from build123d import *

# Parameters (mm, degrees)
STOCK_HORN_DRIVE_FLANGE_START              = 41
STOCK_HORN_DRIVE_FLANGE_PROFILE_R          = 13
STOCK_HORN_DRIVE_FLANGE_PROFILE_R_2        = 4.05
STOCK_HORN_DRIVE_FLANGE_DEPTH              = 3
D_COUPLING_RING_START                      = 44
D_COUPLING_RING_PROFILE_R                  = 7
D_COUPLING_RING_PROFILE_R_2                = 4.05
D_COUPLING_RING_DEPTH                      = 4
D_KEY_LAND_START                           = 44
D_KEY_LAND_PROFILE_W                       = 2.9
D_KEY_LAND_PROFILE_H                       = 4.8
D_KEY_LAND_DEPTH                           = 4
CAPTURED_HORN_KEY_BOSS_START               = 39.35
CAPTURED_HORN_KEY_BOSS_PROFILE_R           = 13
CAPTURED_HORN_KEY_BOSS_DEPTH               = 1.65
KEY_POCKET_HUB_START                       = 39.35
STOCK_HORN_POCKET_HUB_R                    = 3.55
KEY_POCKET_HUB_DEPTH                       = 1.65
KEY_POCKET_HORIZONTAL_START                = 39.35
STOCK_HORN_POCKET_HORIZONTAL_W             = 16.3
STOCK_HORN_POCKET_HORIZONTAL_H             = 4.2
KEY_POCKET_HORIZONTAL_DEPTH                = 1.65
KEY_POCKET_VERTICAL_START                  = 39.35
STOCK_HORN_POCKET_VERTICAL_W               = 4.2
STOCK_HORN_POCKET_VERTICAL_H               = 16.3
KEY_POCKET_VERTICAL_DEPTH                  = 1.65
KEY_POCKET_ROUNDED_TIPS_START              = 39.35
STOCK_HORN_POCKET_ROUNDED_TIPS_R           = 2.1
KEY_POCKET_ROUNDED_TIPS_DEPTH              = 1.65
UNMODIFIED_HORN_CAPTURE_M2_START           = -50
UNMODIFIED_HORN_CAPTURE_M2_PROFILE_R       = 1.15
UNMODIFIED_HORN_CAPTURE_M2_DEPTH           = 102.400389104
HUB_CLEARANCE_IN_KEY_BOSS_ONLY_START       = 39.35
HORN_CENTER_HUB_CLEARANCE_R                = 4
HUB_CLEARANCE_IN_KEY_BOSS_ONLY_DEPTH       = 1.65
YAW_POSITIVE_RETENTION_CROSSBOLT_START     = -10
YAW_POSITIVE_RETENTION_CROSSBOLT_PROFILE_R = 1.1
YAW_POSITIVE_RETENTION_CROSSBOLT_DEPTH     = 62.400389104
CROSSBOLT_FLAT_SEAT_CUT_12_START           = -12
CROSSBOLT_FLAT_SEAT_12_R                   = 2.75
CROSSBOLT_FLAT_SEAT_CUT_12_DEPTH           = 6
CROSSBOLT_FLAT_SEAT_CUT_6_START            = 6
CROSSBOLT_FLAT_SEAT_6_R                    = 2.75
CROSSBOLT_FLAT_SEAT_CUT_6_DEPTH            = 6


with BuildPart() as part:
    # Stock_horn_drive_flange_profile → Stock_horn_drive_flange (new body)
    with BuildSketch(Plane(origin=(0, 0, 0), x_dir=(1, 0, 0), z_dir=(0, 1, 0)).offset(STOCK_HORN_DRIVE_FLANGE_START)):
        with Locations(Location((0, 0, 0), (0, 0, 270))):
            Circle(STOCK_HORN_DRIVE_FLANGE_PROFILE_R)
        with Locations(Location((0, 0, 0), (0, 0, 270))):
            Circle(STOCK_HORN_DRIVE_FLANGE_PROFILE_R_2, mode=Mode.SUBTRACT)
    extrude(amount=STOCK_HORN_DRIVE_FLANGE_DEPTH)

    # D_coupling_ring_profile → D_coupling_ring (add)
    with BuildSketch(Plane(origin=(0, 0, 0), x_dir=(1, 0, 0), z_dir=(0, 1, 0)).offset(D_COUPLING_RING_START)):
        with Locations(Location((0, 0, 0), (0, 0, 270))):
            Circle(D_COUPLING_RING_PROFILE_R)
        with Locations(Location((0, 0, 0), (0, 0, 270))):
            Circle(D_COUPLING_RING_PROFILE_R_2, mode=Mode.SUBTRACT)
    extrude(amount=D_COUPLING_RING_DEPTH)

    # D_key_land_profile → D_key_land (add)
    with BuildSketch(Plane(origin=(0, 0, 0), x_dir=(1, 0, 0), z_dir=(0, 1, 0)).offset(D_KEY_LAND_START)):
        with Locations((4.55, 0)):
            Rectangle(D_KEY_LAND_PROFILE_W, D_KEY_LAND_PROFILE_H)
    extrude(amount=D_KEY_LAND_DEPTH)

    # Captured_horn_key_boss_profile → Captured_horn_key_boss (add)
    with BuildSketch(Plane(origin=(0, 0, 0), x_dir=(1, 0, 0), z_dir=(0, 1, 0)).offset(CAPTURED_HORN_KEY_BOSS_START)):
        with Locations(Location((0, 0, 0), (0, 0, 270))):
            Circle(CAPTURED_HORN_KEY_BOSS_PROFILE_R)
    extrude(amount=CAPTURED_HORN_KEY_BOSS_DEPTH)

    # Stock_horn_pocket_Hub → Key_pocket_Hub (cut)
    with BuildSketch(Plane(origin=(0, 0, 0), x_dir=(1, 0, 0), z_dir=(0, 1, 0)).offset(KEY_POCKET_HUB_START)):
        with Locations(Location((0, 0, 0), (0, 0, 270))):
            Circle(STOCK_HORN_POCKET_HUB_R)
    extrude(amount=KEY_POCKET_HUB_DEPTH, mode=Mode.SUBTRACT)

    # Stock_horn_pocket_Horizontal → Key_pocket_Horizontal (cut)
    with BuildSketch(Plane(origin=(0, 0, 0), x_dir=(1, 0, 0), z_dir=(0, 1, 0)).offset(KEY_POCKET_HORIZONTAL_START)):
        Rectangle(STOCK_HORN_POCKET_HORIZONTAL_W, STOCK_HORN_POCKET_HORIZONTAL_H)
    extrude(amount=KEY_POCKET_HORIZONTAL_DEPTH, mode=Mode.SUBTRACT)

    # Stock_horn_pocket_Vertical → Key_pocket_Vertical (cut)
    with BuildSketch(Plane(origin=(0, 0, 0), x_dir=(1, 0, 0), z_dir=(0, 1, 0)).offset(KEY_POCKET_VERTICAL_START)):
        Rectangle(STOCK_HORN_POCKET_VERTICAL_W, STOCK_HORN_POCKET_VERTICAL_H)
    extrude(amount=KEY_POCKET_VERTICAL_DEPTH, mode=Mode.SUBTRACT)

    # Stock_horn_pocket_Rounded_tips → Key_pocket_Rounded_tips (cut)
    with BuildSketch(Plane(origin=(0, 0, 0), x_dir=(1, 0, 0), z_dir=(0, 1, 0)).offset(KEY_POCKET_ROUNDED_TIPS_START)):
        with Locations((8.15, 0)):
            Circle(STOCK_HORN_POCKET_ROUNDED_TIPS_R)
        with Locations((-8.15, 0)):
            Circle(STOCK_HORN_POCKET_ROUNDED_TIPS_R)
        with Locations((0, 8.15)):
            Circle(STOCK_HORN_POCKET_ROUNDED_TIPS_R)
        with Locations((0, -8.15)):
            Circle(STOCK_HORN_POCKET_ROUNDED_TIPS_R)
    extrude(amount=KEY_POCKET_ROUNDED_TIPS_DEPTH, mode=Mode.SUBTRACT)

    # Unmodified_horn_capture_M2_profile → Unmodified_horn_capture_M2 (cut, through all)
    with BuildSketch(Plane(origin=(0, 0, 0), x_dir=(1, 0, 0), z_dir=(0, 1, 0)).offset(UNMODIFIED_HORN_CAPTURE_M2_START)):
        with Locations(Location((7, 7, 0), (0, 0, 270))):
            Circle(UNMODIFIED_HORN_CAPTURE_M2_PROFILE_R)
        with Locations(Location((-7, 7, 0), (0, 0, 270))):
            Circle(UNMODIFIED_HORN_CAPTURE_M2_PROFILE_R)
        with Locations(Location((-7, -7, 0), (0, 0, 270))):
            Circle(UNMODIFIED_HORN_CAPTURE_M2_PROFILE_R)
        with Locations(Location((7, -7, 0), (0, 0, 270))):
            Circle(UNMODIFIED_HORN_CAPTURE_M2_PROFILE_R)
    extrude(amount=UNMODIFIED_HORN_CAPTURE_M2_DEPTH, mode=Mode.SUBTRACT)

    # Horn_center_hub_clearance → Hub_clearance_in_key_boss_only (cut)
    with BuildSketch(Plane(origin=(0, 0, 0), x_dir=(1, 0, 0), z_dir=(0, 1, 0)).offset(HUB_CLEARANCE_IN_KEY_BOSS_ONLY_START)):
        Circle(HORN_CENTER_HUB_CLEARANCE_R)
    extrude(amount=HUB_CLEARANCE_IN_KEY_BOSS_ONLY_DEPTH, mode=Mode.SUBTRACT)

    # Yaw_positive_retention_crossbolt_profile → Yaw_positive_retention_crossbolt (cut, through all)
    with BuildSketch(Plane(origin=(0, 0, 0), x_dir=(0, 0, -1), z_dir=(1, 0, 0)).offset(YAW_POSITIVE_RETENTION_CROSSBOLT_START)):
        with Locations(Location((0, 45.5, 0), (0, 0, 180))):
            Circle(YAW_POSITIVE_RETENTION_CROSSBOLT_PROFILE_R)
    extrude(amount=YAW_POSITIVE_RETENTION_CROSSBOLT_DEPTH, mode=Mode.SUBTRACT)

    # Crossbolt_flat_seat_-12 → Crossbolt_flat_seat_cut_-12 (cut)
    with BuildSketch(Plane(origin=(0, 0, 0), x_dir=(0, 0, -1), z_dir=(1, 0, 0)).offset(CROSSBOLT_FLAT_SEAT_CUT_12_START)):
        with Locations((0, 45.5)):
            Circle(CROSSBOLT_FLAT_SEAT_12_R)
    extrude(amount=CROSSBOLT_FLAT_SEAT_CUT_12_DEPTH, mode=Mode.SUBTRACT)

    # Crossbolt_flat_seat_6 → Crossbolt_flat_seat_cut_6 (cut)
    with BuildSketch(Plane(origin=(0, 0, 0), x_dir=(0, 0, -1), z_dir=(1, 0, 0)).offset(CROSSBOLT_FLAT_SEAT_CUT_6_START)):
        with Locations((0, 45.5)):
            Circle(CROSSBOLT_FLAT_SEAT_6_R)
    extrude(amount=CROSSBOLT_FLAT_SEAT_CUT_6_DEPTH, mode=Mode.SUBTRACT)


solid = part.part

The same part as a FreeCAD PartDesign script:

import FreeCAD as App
import Part
import Sketcher

V = App.Vector


def add_polygon(sketch, points):
    """Adds a closed chain of lines whose ends are joined by coincident constraints."""
    first, n = sketch.GeometryCount, len(points)
    for a, b in zip(points, points[1:] + points[:1]):
        sketch.addGeometry(Part.LineSegment(App.Vector(*a, 0), App.Vector(*b, 0)), False)
    for i in range(n):
        sketch.addConstraint(Sketcher.Constraint("Coincident", first + i, 2, first + (i + 1) % n, 1))

doc = App.newDocument("Part")
params = doc.addObject("Spreadsheet::Sheet", "Params")
for row, (alias, value) in enumerate([
    ("sketch1_diameter", "26 mm"),
    ("sketch1_diameter2", "8.1 mm"),
    ("pad1_length", "3 mm"),
    ("sketch2_diameter", "14 mm"),
    ("sketch2_diameter2", "8.1 mm"),
    ("pad2_length", "4 mm"),
    ("sketch3_width", "2.9 mm"),
    ("sketch3_height", "4.8 mm"),
    ("pad3_length", "4 mm"),
    ("sketch4_diameter", "26 mm"),
    ("pad4_length", "1.65 mm"),
    ("sketch5_diameter", "7.1 mm"),
    ("pocket1_length", "1.65 mm"),
    ("sketch6_width", "16.3 mm"),
    ("sketch6_height", "4.2 mm"),
    ("pocket2_length", "1.65 mm"),
    ("sketch7_width", "4.2 mm"),
    ("sketch7_height", "16.3 mm"),
    ("pocket3_length", "1.65 mm"),
    ("sketch8_diameter", "4.2 mm"),
    ("pocket4_length", "1.65 mm"),
    ("sketch9_diameter", "2.3 mm"),
    ("sketch10_diameter", "8 mm"),
    ("pocket6_length", "1.65 mm"),
    ("sketch11_diameter", "2.2 mm"),
    ("sketch12_diameter", "5.5 mm"),
    ("pocket8_length", "6 mm"),
    ("sketch13_diameter", "5.5 mm"),
    ("pocket9_length", "6 mm"),
], start=1):
    params.set(f"A{row}", alias)
    params.set(f"B{row}", "=" + value)
    params.setAlias(f"B{row}", alias)

body = doc.addObject("PartDesign::Body", "Body")

sketch1 = body.newObject("Sketcher::SketchObject", "Sketch")
sketch1.AttachmentSupport = (doc.getObject("XZ_Plane"), [""])
sketch1.MapMode = "FlatFace"
sketch1.AttachmentOffset = App.Placement(V(0, 0, -41), App.Rotation())
sketch1.addGeometry([
    Part.Circle(V(0, 0, 0), V(0, 0, 1), 13),
    Part.Circle(V(0, 0, 0), V(0, 0, 1), 4.05),
], False)
sketch1.addConstraint([
    Sketcher.Constraint("Coincident", 0, 3, -1, 1),
    Sketcher.Constraint("Coincident", 1, 3, -1, 1),
    Sketcher.Constraint("Diameter", 0, 26.0),
    Sketcher.Constraint("Diameter", 1, 8.1),
])
sketch1.setExpression("Constraints[2]", "Params.sketch1_diameter")
sketch1.setExpression("Constraints[3]", "Params.sketch1_diameter2")
pad1 = body.newObject("PartDesign::Pad", "Pad")
pad1.Profile = sketch1
pad1.setExpression("Length", "Params.pad1_length")
pad1.Reversed = True

sketch2 = body.newObject("Sketcher::SketchObject", "Sketch001")
sketch2.AttachmentSupport = (doc.getObject("XZ_Plane"), [""])
sketch2.MapMode = "FlatFace"
sketch2.AttachmentOffset = App.Placement(V(0, 0, -44), App.Rotation())
sketch2.addGeometry([
    Part.Circle(V(0, 0, 0), V(0, 0, 1), 7),
    Part.Circle(V(0, 0, 0), V(0, 0, 1), 4.05),
], False)
sketch2.addConstraint([
    Sketcher.Constraint("Coincident", 0, 3, -1, 1),
    Sketcher.Constraint("Coincident", 1, 3, -1, 1),
    Sketcher.Constraint("Diameter", 0, 14.0),
    Sketcher.Constraint("Diameter", 1, 8.1),
])
sketch2.setExpression("Constraints[2]", "Params.sketch2_diameter")
sketch2.setExpression("Constraints[3]", "Params.sketch2_diameter2")
pad2 = body.newObject("PartDesign::Pad", "Pad001")
pad2.Profile = sketch2
pad2.setExpression("Length", "Params.pad2_length")
pad2.Reversed = True

sketch3 = body.newObject("Sketcher::SketchObject", "Sketch002")
sketch3.AttachmentSupport = (doc.getObject("XZ_Plane"), [""])
sketch3.MapMode = "FlatFace"
sketch3.AttachmentOffset = App.Placement(V(0, 0, -44), App.Rotation())
add_polygon(sketch3, [(3.1, -2.4), (3.1, 2.4), (6, 2.4), (6, -2.4)])
sketch3.addConstraint([
    Sketcher.Constraint("Vertical", 0),
    Sketcher.Constraint("Horizontal", 1),
    Sketcher.Constraint("Vertical", 2),
    Sketcher.Constraint("Horizontal", 3),
    Sketcher.Constraint("DistanceX", 1, 1, 1, 2, 2.9),
    Sketcher.Constraint("DistanceY", 0, 1, 0, 2, 4.8),
    Sketcher.Constraint("DistanceX", -1, 1, 1, 2, 6.0),
    Sketcher.Constraint("DistanceY", -1, 1, 0, 2, 2.4),
])
sketch3.setExpression("Constraints[8]", "Params.sketch3_width")
sketch3.setExpression("Constraints[9]", "Params.sketch3_height")
pad3 = body.newObject("PartDesign::Pad", "Pad002")
pad3.Profile = sketch3
pad3.setExpression("Length", "Params.pad3_length")
pad3.Reversed = True

sketch4 = body.newObject("Sketcher::SketchObject", "Sketch003")
sketch4.AttachmentSupport = (doc.getObject("XZ_Plane"), [""])
sketch4.MapMode = "FlatFace"
sketch4.AttachmentOffset = App.Placement(V(0, 0, -39.35), App.Rotation())
sketch4.addGeometry(Part.Circle(V(0, 0, 0), V(0, 0, 1), 13), False)
sketch4.addConstraint([
    Sketcher.Constraint("Coincident", 0, 3, -1, 1),
    Sketcher.Constraint("Diameter", 0, 26.0),
])
sketch4.setExpression("Constraints[1]", "Params.sketch4_diameter")
pad4 = body.newObject("PartDesign::Pad", "Pad003")
pad4.Profile = sketch4
pad4.setExpression("Length", "Params.pad4_length")
pad4.Reversed = True

sketch5 = body.newObject("Sketcher::SketchObject", "Sketch004")
sketch5.AttachmentSupport = (doc.getObject("XZ_Plane"), [""])
sketch5.MapMode = "FlatFace"
sketch5.AttachmentOffset = App.Placement(V(0, 0, -39.35), App.Rotation())
sketch5.addGeometry(Part.Circle(V(0, 0, 0), V(0, 0, 1), 3.55), False)
sketch5.addConstraint([
    Sketcher.Constraint("Coincident", 0, 3, -1, 1),
    Sketcher.Constraint("Diameter", 0, 7.1),
])
sketch5.setExpression("Constraints[1]", "Params.sketch5_diameter")
pocket1 = body.newObject("PartDesign::Pocket", "Pocket")
pocket1.Profile = sketch5
pocket1.setExpression("Length", "Params.pocket1_length")

sketch6 = body.newObject("Sketcher::SketchObject", "Sketch005")
sketch6.AttachmentSupport = (doc.getObject("XZ_Plane"), [""])
sketch6.MapMode = "FlatFace"
sketch6.AttachmentOffset = App.Placement(V(0, 0, -39.35), App.Rotation())
add_polygon(sketch6, [(-8.15, -2.1), (-8.15, 2.1), (8.15, 2.1), (8.15, -2.1)])
sketch6.addConstraint([
    Sketcher.Constraint("Vertical", 0),
    Sketcher.Constraint("Horizontal", 1),
    Sketcher.Constraint("Vertical", 2),
    Sketcher.Constraint("Horizontal", 3),
    Sketcher.Constraint("Symmetric", 0, 2, 2, 2, -1, 1),
    Sketcher.Constraint("DistanceX", 1, 1, 1, 2, 16.3),
    Sketcher.Constraint("DistanceY", 0, 1, 0, 2, 4.2),
])
sketch6.setExpression("Constraints[9]", "Params.sketch6_width")
sketch6.setExpression("Constraints[10]", "Params.sketch6_height")
pocket2 = body.newObject("PartDesign::Pocket", "Pocket001")
pocket2.Profile = sketch6
pocket2.setExpression("Length", "Params.pocket2_length")

sketch7 = body.newObject("Sketcher::SketchObject", "Sketch006")
sketch7.AttachmentSupport = (doc.getObject("XZ_Plane"), [""])
sketch7.MapMode = "FlatFace"
sketch7.AttachmentOffset = App.Placement(V(0, 0, -39.35), App.Rotation())
add_polygon(sketch7, [(-2.1, -8.15), (-2.1, 8.15), (2.1, 8.15), (2.1, -8.15)])
sketch7.addConstraint([
    Sketcher.Constraint("Vertical", 0),
    Sketcher.Constraint("Horizontal", 1),
    Sketcher.Constraint("Vertical", 2),
    Sketcher.Constraint("Horizontal", 3),
    Sketcher.Constraint("Symmetric", 0, 2, 2, 2, -1, 1),
    Sketcher.Constraint("DistanceX", 1, 1, 1, 2, 4.2),
    Sketcher.Constraint("DistanceY", 0, 1, 0, 2, 16.3),
])
sketch7.setExpression("Constraints[9]", "Params.sketch7_width")
sketch7.setExpression("Constraints[10]", "Params.sketch7_height")
pocket3 = body.newObject("PartDesign::Pocket", "Pocket002")
pocket3.Profile = sketch7
pocket3.setExpression("Length", "Params.pocket3_length")

sketch8 = body.newObject("Sketcher::SketchObject", "Sketch007")
sketch8.AttachmentSupport = (doc.getObject("XZ_Plane"), [""])
sketch8.MapMode = "FlatFace"
sketch8.AttachmentOffset = App.Placement(V(0, 0, -39.35), App.Rotation())
sketch8.addGeometry([
    Part.Circle(V(8.15, 0, 0), V(0, 0, 1), 2.1),
    Part.Circle(V(-8.15, 0, 0), V(0, 0, 1), 2.1),
    Part.Circle(V(0, -8.15, 0), V(0, 0, 1), 2.1),
    Part.Circle(V(0, 8.15, 0), V(0, 0, 1), 2.1),
], False)
sketch8.addConstraint([
    Sketcher.Constraint("Equal", 0, 1),
    Sketcher.Constraint("Equal", 1, 2),
    Sketcher.Constraint("Equal", 2, 3),
    Sketcher.Constraint("Symmetric", 0, 3, 1, 3, -1, 1),
    Sketcher.Constraint("Symmetric", 2, 3, 3, 3, -1, 1),
    Sketcher.Constraint("PointOnObject", 0, 3, -1),
    Sketcher.Constraint("PointOnObject", 2, 3, -2),
    Sketcher.Constraint("Diameter", 0, 4.2),
    Sketcher.Constraint("DistanceX", 1, 3, 0, 3, 16.3),
    Sketcher.Constraint("DistanceY", 2, 3, 3, 3, 16.3),
])
sketch8.setExpression("Constraints[7]", "Params.sketch8_diameter")
pocket4 = body.newObject("PartDesign::Pocket", "Pocket003")
pocket4.Profile = sketch8
pocket4.setExpression("Length", "Params.pocket4_length")

sketch9 = body.newObject("Sketcher::SketchObject", "Sketch008")
sketch9.AttachmentSupport = (doc.getObject("XZ_Plane"), [""])
sketch9.MapMode = "FlatFace"
sketch9.AttachmentOffset = App.Placement(V(0, 0, 50), App.Rotation())
sketch9.addGeometry([
    Part.Circle(V(7, -7, 0), V(0, 0, 1), 1.15),
    Part.Circle(V(-7, -7, 0), V(0, 0, 1), 1.15),
    Part.Circle(V(-7, 7, 0), V(0, 0, 1), 1.15),
    Part.Circle(V(7, 7, 0), V(0, 0, 1), 1.15),
], False)
sketch9.addConstraint([
    Sketcher.Constraint("Equal", 0, 1),
    Sketcher.Constraint("Equal", 1, 2),
    Sketcher.Constraint("Equal", 2, 3),
    Sketcher.Constraint("Symmetric", 0, 3, 2, 3, -1, 1),
    Sketcher.Constraint("Symmetric", 1, 3, 3, 3, -1, 1),
    Sketcher.Constraint("Symmetric", 0, 3, 1, 3, -2),
    Sketcher.Constraint("Diameter", 0, 2.3),
    Sketcher.Constraint("DistanceX", -1, 1, 0, 3, 7.0),
    Sketcher.Constraint("DistanceY", 0, 3, -1, 1, 7.0),
])
sketch9.setExpression("Constraints[6]", "Params.sketch9_diameter")
pocket5 = body.newObject("PartDesign::Pocket", "Pocket004")
pocket5.Profile = sketch9
pocket5.Type = "ThroughAll"

sketch10 = body.newObject("Sketcher::SketchObject", "Sketch009")
sketch10.AttachmentSupport = (doc.getObject("XZ_Plane"), [""])
sketch10.MapMode = "FlatFace"
sketch10.AttachmentOffset = App.Placement(V(0, 0, -39.35), App.Rotation())
sketch10.addGeometry(Part.Circle(V(0, 0, 0), V(0, 0, 1), 4), False)
sketch10.addConstraint([
    Sketcher.Constraint("Coincident", 0, 3, -1, 1),
    Sketcher.Constraint("Diameter", 0, 8.0),
])
sketch10.setExpression("Constraints[1]", "Params.sketch10_diameter")
pocket6 = body.newObject("PartDesign::Pocket", "Pocket005")
pocket6.Profile = sketch10
pocket6.setExpression("Length", "Params.pocket6_length")

sketch11 = body.newObject("Sketcher::SketchObject", "Sketch010")
sketch11.AttachmentSupport = (doc.getObject("YZ_Plane"), [""])
sketch11.MapMode = "FlatFace"
sketch11.AttachmentOffset = App.Placement(V(0, 0, -10), App.Rotation())
sketch11.addGeometry(Part.Circle(V(45.5, 0, 0), V(0, 0, 1), 1.1), False)
sketch11.addConstraint([
    Sketcher.Constraint("PointOnObject", 0, 3, -1),
    Sketcher.Constraint("Diameter", 0, 2.2),
    Sketcher.Constraint("DistanceX", -1, 1, 0, 3, 45.5),
])
sketch11.setExpression("Constraints[1]", "Params.sketch11_diameter")
pocket7 = body.newObject("PartDesign::Pocket", "Pocket006")
pocket7.Profile = sketch11
pocket7.Type = "ThroughAll"
pocket7.Reversed = True

sketch12 = body.newObject("Sketcher::SketchObject", "Sketch011")
sketch12.AttachmentSupport = (doc.getObject("YZ_Plane"), [""])
sketch12.MapMode = "FlatFace"
sketch12.AttachmentOffset = App.Placement(V(0, 0, -12), App.Rotation())
sketch12.addGeometry(Part.Circle(V(45.5, 0, 0), V(0, 0, 1), 2.75), False)
sketch12.addConstraint([
    Sketcher.Constraint("PointOnObject", 0, 3, -1),
    Sketcher.Constraint("Diameter", 0, 5.5),
    Sketcher.Constraint("DistanceX", -1, 1, 0, 3, 45.5),
])
sketch12.setExpression("Constraints[1]", "Params.sketch12_diameter")
pocket8 = body.newObject("PartDesign::Pocket", "Pocket007")
pocket8.Profile = sketch12
pocket8.setExpression("Length", "Params.pocket8_length")
pocket8.Reversed = True

sketch13 = body.newObject("Sketcher::SketchObject", "Sketch012")
sketch13.AttachmentSupport = (doc.getObject("YZ_Plane"), [""])
sketch13.MapMode = "FlatFace"
sketch13.AttachmentOffset = App.Placement(V(0, 0, 6), App.Rotation())
sketch13.addGeometry(Part.Circle(V(45.5, 0, 0), V(0, 0, 1), 2.75), False)
sketch13.addConstraint([
    Sketcher.Constraint("PointOnObject", 0, 3, -1),
    Sketcher.Constraint("Diameter", 0, 5.5),
    Sketcher.Constraint("DistanceX", -1, 1, 0, 3, 45.5),
])
sketch13.setExpression("Constraints[1]", "Params.sketch13_diameter")
pocket9 = body.newObject("PartDesign::Pocket", "Pocket008")
pocket9.Profile = sketch13
pocket9.setExpression("Length", "Params.pocket9_length")
pocket9.Reversed = True

doc.recompute()
